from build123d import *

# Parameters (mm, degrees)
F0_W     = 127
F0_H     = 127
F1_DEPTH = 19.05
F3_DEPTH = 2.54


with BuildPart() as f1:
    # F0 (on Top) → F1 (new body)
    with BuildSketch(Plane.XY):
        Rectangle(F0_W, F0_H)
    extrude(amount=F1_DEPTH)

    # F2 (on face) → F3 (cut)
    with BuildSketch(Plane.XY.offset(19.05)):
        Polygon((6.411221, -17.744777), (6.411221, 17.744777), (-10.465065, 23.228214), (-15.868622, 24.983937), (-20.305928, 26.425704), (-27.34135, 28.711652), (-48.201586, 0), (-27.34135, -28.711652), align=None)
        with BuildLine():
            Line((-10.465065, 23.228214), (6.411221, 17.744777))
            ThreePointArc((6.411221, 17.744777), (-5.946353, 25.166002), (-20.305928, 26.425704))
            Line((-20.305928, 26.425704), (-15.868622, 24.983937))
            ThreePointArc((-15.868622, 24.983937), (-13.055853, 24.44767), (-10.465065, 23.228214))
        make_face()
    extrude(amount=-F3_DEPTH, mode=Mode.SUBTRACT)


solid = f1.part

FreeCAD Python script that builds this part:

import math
import FreeCAD as App
import Part
import Sketcher

V = App.Vector
Q = App.Units.Quantity

doc = App.newDocument("Part")
params = doc.addObject("Spreadsheet::Sheet", "Params")
for row, (alias, value) in enumerate([
    ("sketch1_width", "5 in"),
    ("pad1_length", "0.75 in"),
    ("pocket1_length", "0.1 in"),
], start=1):
    params.set(f"A{row}", alias)
    params.set(f"B{row}", "=" + value)
    params.setAlias(f"B{row}", alias)

body = doc.addObject("PartDesign::Body", "Body")

# Sketch on XY plane
sketch1 = body.newObject("Sketcher::SketchObject", "Sketch")
sketch1.AttachmentSupport = (doc.getObject("XY_Plane"), [""])
sketch1.MapMode = "FlatFace"
sketch1.addGeometry(Part.LineSegment(V(-63.5, 63.5, 0), V(-63.5, -63.5, 0)), False)
sketch1.addGeometry(Part.LineSegment(V(-63.5, -63.5, 0), V(63.5, -63.5, 0)), False)
sketch1.addGeometry(Part.LineSegment(V(63.5, -63.5, 0), V(63.5, 63.5, 0)), False)
sketch1.addGeometry(Part.LineSegment(V(63.5, 63.5, 0), V(-63.5, 63.5, 0)), False)
sketch1.addConstraint(Sketcher.Constraint("Coincident", 0, 2, 1, 1))
sketch1.addConstraint(Sketcher.Constraint("Coincident", 1, 2, 2, 1))
sketch1.addConstraint(Sketcher.Constraint("Coincident", 2, 2, 3, 1))
sketch1.addConstraint(Sketcher.Constraint("Coincident", 3, 2, 0, 1))
sketch1.addConstraint(Sketcher.Constraint("Vertical", 0))
sketch1.addConstraint(Sketcher.Constraint("Horizontal", 1))
sketch1.addConstraint(Sketcher.Constraint("Vertical", 2))
sketch1.addConstraint(Sketcher.Constraint("Horizontal", 3))
sketch1.addConstraint(Sketcher.Constraint("Symmetric", 0, 2, 2, 2, -1, 1))
sketch1.addConstraint(Sketcher.Constraint("Equal", 3, 0))
sketch1.addConstraint(Sketcher.Constraint("DistanceX", 1, 1, 1, 2, Q("5 in")))
sketch1.setExpression("Constraints[10]", "Params.sketch1_width")
pad1 = body.newObject("PartDesign::Pad", "Pad")
pad1.Profile = sketch1
pad1.setExpression("Length", "Params.pad1_length")

# Sketch on XY plane
sketch2 = body.newObject("Sketcher::SketchObject", "Sketch001")
sketch2.AttachmentSupport = (doc.getObject("XY_Plane"), [""])
sketch2.MapMode = "FlatFace"
sketch2.AttachmentOffset = App.Placement(V(0, 0, 0.75 * 25.4), App.Rotation())
sketch2.addGeometry(Part.LineSegment(V(6.411221, -17.744777, 0), V(6.411221, 17.744777, 0)), False)
sketch2.addGeometry(Part.ArcOfCircle(Part.Circle(V(-15.857254, -5.336618, 0), V(0, 0, 1), 32.072353), math.radians(46.026946), math.radians(97.973058)), False)
sketch2.addGeometry(Part.LineSegment(V(-20.305928, 26.425704, 0), V(-27.34135, 28.711652, 0)), False)
sketch2.addGeometry(Part.LineSegment(V(-27.34135, 28.711652, 0), V(-48.201586, 0, 0)), False)
sketch2.addGeometry(Part.LineSegment(V(-48.201586, 0, 0), V(-27.34135, -28.711652, 0)), False)
sketch2.addGeometry(Part.LineSegment(V(-27.34135, -28.711652, 0), V(6.411221, -17.744777, 0)), False)
sketch2.addGeometry(Part.LineSegment(V(-10.465065, 23.228214, 0), V(-15.868622, 24.983937, 0)), False)
sketch2.addGeometry(Part.ArcOfCircle(Part.Circle(V(-16.582991, 13.592261, 0), V(0, 0, 1), 11.414053), math.radians(57.588286), math.radians(86.411697)), False)
sketch2.addConstraint(Sketcher.Constraint("Coincident", 0, 2, 1, 1))
sketch2.addConstraint(Sketcher.Constraint("Coincident", 1, 2, 2, 1))
sketch2.addConstraint(Sketcher.Constraint("Coincident", 2, 2, 3, 1))
sketch2.addConstraint(Sketcher.Constraint("Coincident", 3, 2, 4, 1))
sketch2.addConstraint(Sketcher.Constraint("Coincident", 4, 2, 5, 1))
sketch2.addConstraint(Sketcher.Constraint("Coincident", 5, 2, 0, 1))
sketch2.addConstraint(Sketcher.Constraint("Coincident", 6, 1, 7, 1))
sketch2.addConstraint(Sketcher.Constraint("Coincident", 7, 2, 6, 2))
sketch2.addConstraint(Sketcher.Constraint("Vertical", 0))
sketch2.addConstraint(Sketcher.Constraint("Symmetric", 2, 2, 4, 2, -1))
sketch2.addConstraint(Sketcher.Constraint("PointOnObject", 3, 2, -1))
sketch2.addConstraint(Sketcher.Constraint("Parallel", 2, 6))
sketch2.addConstraint(Sketcher.Constraint("Equal", 4, 5))
sketch2.addConstraint(Sketcher.Constraint("Angle", 2, Q("161.999994 deg")))
sketch2.addConstraint(Sketcher.Constraint("Angle", 3, Q("-126 deg")))
sketch2.addConstraint(Sketcher.Constraint("Angle", 5, Q("18 deg")))
sketch2.addConstraint(Sketcher.Constraint("Radius", 1, 32.072353))
sketch2.addConstraint(Sketcher.Constraint("Radius", 7, 11.414053))
sketch2.addConstraint(Sketcher.Constraint("Distance", 2, 7.397481))
sketch2.addConstraint(Sketcher.Constraint("DistanceY", 0, 1, 0, 2, 35.489554))
sketch2.addConstraint(Sketcher.Constraint("DistanceY", 1, 3, -1, 1, 5.336618))
sketch2.addConstraint(Sketcher.Constraint("DistanceX", 7, 3, -1, 1, 16.582991))
sketch2.addConstraint(Sketcher.Constraint("DistanceY", -1, 1, 7, 3, 13.592261))
sketch2.addConstraint(Sketcher.Constraint("DistanceX", -1, 1, 0, 2, 6.411221))
sketch2.addConstraint(Sketcher.Constraint("DistanceX", 7, 2, -1, 1, 15.868622))
pocket1 = body.newObject("PartDesign::Pocket", "Pocket")
pocket1.Profile = sketch2
pocket1.setExpression("Length", "Params.pocket1_length")

doc.recompute()
